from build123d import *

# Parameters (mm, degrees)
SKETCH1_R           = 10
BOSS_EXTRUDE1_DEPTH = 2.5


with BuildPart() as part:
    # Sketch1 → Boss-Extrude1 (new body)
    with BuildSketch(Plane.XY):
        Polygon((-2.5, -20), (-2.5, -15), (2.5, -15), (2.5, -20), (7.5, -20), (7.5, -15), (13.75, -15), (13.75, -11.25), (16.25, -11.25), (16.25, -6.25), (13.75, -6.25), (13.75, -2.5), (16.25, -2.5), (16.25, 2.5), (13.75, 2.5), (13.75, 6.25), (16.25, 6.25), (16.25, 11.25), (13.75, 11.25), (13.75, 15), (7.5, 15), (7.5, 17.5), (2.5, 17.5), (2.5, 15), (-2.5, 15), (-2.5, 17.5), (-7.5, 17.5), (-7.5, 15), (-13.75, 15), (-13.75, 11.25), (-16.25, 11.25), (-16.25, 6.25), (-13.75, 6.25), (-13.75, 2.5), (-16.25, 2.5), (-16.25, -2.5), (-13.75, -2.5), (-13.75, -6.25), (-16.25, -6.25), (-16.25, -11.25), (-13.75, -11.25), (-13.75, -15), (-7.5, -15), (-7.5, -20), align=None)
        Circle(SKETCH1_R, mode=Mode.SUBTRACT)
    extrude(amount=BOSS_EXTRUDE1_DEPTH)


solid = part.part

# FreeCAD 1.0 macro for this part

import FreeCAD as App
import Part
import Sketcher

V = App.Vector

doc = App.newDocument("Part")
body = doc.addObject("PartDesign::Body", "Body")

sketch1 = doc.addObject("Sketcher::SketchObject", "Sketch")
body.addObject(sketch1)
sketch1.AttachmentSupport = (doc.XY_Plane, [""])
sketch1.MapMode = "FlatFace"
sketch1.addGeometry(Part.LineSegment(V(-2.5, -20, 0), V(-2.5, -15, 0)), False)
sketch1.addGeometry(Part.LineSegment(V(-2.5, -15, 0), V(2.5, -15, 0)), False)
sketch1.addGeometry(Part.LineSegment(V(2.5, -15, 0), V(2.5, -20, 0)), False)
sketch1.addGeometry(Part.LineSegment(V(2.5, -20, 0), V(7.5, -20, 0)), False)
sketch1.addGeometry(Part.LineSegment(V(7.5, -20, 0), V(7.5, -15, 0)), False)
sketch1.addGeometry(Part.LineSegment(V(7.5, -15, 0), V(13.75, -15, 0)), False)
sketch1.addGeometry(Part.LineSegment(V(13.75, -15, 0), V(13.75, -11.25, 0)), False)
sketch1.addGeometry(Part.LineSegment(V(13.75, -11.25, 0), V(16.25, -11.25, 0)), False)
sketch1.addGeometry(Part.LineSegment(V(16.25, -11.25, 0), V(16.25, -6.25, 0)), False)
sketch1.addGeometry(Part.LineSegment(V(16.25, -6.25, 0), V(13.75, -6.25, 0)), False)
sketch1.addGeometry(Part.LineSegment(V(13.75, -6.25, 0), V(13.75, -2.5, 0)), False)
sketch1.addGeometry(Part.LineSegment(V(13.75, -2.5, 0), V(16.25, -2.5, 0)), False)
sketch1.addGeometry(Part.LineSegment(V(16.25, -2.5, 0), V(16.25, 2.5, 0)), False)
sketch1.addGeometry(Part.LineSegment(V(16.25, 2.5, 0), V(13.75, 2.5, 0)), False)
sketch1.addGeometry(Part.LineSegment(V(13.75, 2.5, 0), V(13.75, 6.25, 0)), False)
sketch1.addGeometry(Part.LineSegment(V(13.75, 6.25, 0), V(16.25, 6.25, 0)), False)
sketch1.addGeometry(Part.LineSegment(V(16.25, 6.25, 0), V(16.25, 11.25, 0)), False)
sketch1.addGeometry(Part.LineSegment(V(16.25, 11.25, 0), V(13.75, 11.25, 0)), False)
sketch1.addGeometry(Part.LineSegment(V(13.75, 11.25, 0), V(13.75, 15, 0)), False)
sketch1.addGeometry(Part.LineSegment(V(13.75, 15, 0), V(7.5, 15, 0)), False)
sketch1.addGeometry(Part.LineSegment(V(7.5, 15, 0), V(7.5, 17.5, 0)), False)
sketch1.addGeometry(Part.LineSegment(V(7.5, 17.5, 0), V(2.5, 17.5, 0)), False)
sketch1.addGeometry(Part.LineSegment(V(2.5, 17.5, 0), V(2.5, 15, 0)), False)
sketch1.addGeometry(Part.LineSegment(V(2.5, 15, 0), V(-2.5, 15, 0)), False)
sketch1.addGeometry(Part.LineSegment(V(-2.5, 15, 0), V(-2.5, 17.5, 0)), False)
sketch1.addGeometry(Part.LineSegment(V(-2.5, 17.5, 0), V(-7.5, 17.5, 0)), False)
sketch1.addGeometry(Part.LineSegment(V(-7.5, 17.5, 0), V(-7.5, 15, 0)), False)
sketch1.addGeometry(Part.LineSegment(V(-7.5, 15, 0), V(-13.75, 15, 0)), False)
sketch1.addGeometry(Part.LineSegment(V(-13.75, 15, 0), V(-13.75, 11.25, 0)), False)
sketch1.addGeometry(Part.LineSegment(V(-13.75, 11.25, 0), V(-16.25, 11.25, 0)), False)
sketch1.addGeometry(Part.LineSegment(V(-16.25, 11.25, 0), V(-16.25, 6.25, 0)), False)
sketch1.addGeometry(Part.LineSegment(V(-16.25, 6.25, 0), V(-13.75, 6.25, 0)), False)
sketch1.addGeometry(Part.LineSegment(V(-13.75, 6.25, 0), V(-13.75, 2.5, 0)), False)
sketch1.addGeometry(Part.LineSegment(V(-13.75, 2.5, 0), V(-16.25, 2.5, 0)), False)
sketch1.addGeometry(Part.LineSegment(V(-16.25, 2.5, 0), V(-16.25, -2.5, 0)), False)
sketch1.addGeometry(Part.LineSegment(V(-16.25, -2.5, 0), V(-13.75, -2.5, 0)), False)
sketch1.addGeometry(Part.LineSegment(V(-13.75, -2.5, 0), V(-13.75, -6.25, 0)), False)
sketch1.addGeometry(Part.LineSegment(V(-13.75, -6.25, 0), V(-16.25, -6.25, 0)), False)
sketch1.addGeometry(Part.LineSegment(V(-16.25, -6.25, 0), V(-16.25, -11.25, 0)), False)
sketch1.addGeometry(Part.LineSegment(V(-16.25, -11.25, 0), V(-13.75, -11.25, 0)), False)
sketch1.addGeometry(Part.LineSegment(V(-13.75, -11.25, 0), V(-13.75, -15, 0)), False)
sketch1.addGeometry(Part.LineSegment(V(-13.75, -15, 0), V(-7.5, -15, 0)), False)
sketch1.addGeometry(Part.LineSegment(V(-7.5, -15, 0), V(-7.5, -20, 0)), False)
sketch1.addGeometry(Part.LineSegment(V(-7.5, -20, 0), V(-2.5, -20, 0)), False)
sketch1.addGeometry(Part.Circle(V(0, 0, 0), V(0, 0, 1), 10), False)
sketch1.addConstraint(Sketcher.Constraint("Coincident", 0, 2, 1, 1))
sketch1.addConstraint(Sketcher.Constraint("Coincident", 1, 2, 2, 1))
sketch1.addConstraint(Sketcher.Constraint("Coincident", 2, 2, 3, 1))
sketch1.addConstraint(Sketcher.Constraint("Coincident", 3, 2, 4, 1))
sketch1.addConstraint(Sketcher.Constraint("Coincident", 4, 2, 5, 1))
sketch1.addConstraint(Sketcher.Constraint("Coincident", 5, 2, 6, 1))
sketch1.addConstraint(Sketcher.Constraint("Coincident", 6, 2, 7, 1))
sketch1.addConstraint(Sketcher.Constraint("Coincident", 7, 2, 8, 1))
sketch1.addConstraint(Sketcher.Constraint("Coincident", 8, 2, 9, 1))
sketch1.addConstraint(Sketcher.Constraint("Coincident", 9, 2, 10, 1))
sketch1.addConstraint(Sketcher.Constraint("Coincident", 10, 2, 11, 1))
sketch1.addConstraint(Sketcher.Constraint("Coincident", 11, 2, 12, 1))
sketch1.addConstraint(Sketcher.Constraint("Coincident", 12, 2, 13, 1))
sketch1.addConstraint(Sketcher.Constraint("Coincident", 13, 2, 14, 1))
sketch1.addConstraint(Sketcher.Constraint("Coincident", 14, 2, 15, 1))
sketch1.addConstraint(Sketcher.Constraint("Coincident", 15, 2, 16, 1))
sketch1.addConstraint(Sketcher.Constraint("Coincident", 16, 2, 17, 1))
sketch1.addConstraint(Sketcher.Constraint("Coincident", 17, 2, 18, 1))
sketch1.addConstraint(Sketcher.Constraint("Coincident", 18, 2, 19, 1))
sketch1.addConstraint(Sketcher.Constraint("Coincident", 19, 2, 20, 1))
sketch1.addConstraint(Sketcher.Constraint("Coincident", 20, 2, 21, 1))
sketch1.addConstraint(Sketcher.Constraint("Coincident", 21, 2, 22, 1))
sketch1.addConstraint(Sketcher.Constraint("Coincident", 22, 2, 23, 1))
sketch1.addConstraint(Sketcher.Constraint("Coincident", 23, 2, 24, 1))
sketch1.addConstraint(Sketcher.Constraint("Coincident", 24, 2, 25, 1))
sketch1.addConstraint(Sketcher.Constraint("Coincident", 25, 2, 26, 1))
sketch1.addConstraint(Sketcher.Constraint("Coincident", 26, 2, 27, 1))
sketch1.addConstraint(Sketcher.Constraint("Coincident", 27, 2, 28, 1))
sketch1.addConstraint(Sketcher.Constraint("Coincident", 28, 2, 29, 1))
sketch1.addConstraint(Sketcher.Constraint("Coincident", 29, 2, 30, 1))
sketch1.addConstraint(Sketcher.Constraint("Coincident", 30, 2, 31, 1))
sketch1.addConstraint(Sketcher.Constraint("Coincident", 31, 2, 32, 1))
sketch1.addConstraint(Sketcher.Constraint("Coincident", 32, 2, 33, 1))
sketch1.addConstraint(Sketcher.Constraint("Coincident", 33, 2, 34, 1))
sketch1.addConstraint(Sketcher.Constraint("Coincident", 34, 2, 35, 1))
sketch1.addConstraint(Sketcher.Constraint("Coincident", 35, 2, 36, 1))
sketch1.addConstraint(Sketcher.Constraint("Coincident", 36, 2, 37, 1))
sketch1.addConstraint(Sketcher.Constraint("Coincident", 37, 2, 38, 1))
sketch1.addConstraint(Sketcher.Constraint("Coincident", 38, 2, 39, 1))
sketch1.addConstraint(Sketcher.Constraint("Coincident", 39, 2, 40, 1))
sketch1.addConstraint(Sketcher.Constraint("Coincident", 40, 2, 41, 1))
sketch1.addConstraint(Sketcher.Constraint("Coincident", 41, 2, 42, 1))
sketch1.addConstraint(Sketcher.Constraint("Coincident", 42, 2, 43, 1))
sketch1.addConstraint(Sketcher.Constraint("Coincident", 43, 2, 0, 1))
sketch1.addConstraint(Sketcher.Constraint("Vertical", 0))
sketch1.addConstraint(Sketcher.Constraint("Horizontal", 1))
sketch1.addConstraint(Sketcher.Constraint("Vertical", 2))
sketch1.addConstraint(Sketcher.Constraint("Horizontal", 3))
sketch1.addConstraint(Sketcher.Constraint("Vertical", 4))
sketch1.addConstraint(Sketcher.Constraint("Horizontal", 5))
sketch1.addConstraint(Sketcher.Constraint("Vertical", 6))
sketch1.addConstraint(Sketcher.Constraint("Horizontal", 7))
sketch1.addConstraint(Sketcher.Constraint("Vertical", 8))
sketch1.addConstraint(Sketcher.Constraint("Horizontal", 9))
sketch1.addConstraint(Sketcher.Constraint("Vertical", 10))
sketch1.addConstraint(Sketcher.Constraint("Horizontal", 11))
sketch1.addConstraint(Sketcher.Constraint("Vertical", 12))
sketch1.addConstraint(Sketcher.Constraint("Horizontal", 13))
sketch1.addConstraint(Sketcher.Constraint("Vertical", 14))
sketch1.addConstraint(Sketcher.Constraint("Horizontal", 15))
sketch1.addConstraint(Sketcher.Constraint("Vertical", 16))
sketch1.addConstraint(Sketcher.Constraint("Horizontal", 17))
sketch1.addConstraint(Sketcher.Constraint("Vertical", 18))
sketch1.addConstraint(Sketcher.Constraint("Horizontal", 19))
sketch1.addConstraint(Sketcher.Constraint("Vertical", 20))
sketch1.addConstraint(Sketcher.Constraint("Horizontal", 21))
sketch1.addConstraint(Sketcher.Constraint("Vertical", 22))
sketch1.addConstraint(Sketcher.Constraint("Horizontal", 23))
sketch1.addConstraint(Sketcher.Constraint("Vertical", 24))
sketch1.addConstraint(Sketcher.Constraint("Horizontal", 25))
sketch1.addConstraint(Sketcher.Constraint("Vertical", 26))
sketch1.addConstraint(Sketcher.Constraint("Horizontal", 27))
sketch1.addConstraint(Sketcher.Constraint("Vertical", 28))
sketch1.addConstraint(Sketcher.Constraint("Horizontal", 29))
sketch1.addConstraint(Sketcher.Constraint("Vertical", 30))
sketch1.addConstraint(Sketcher.Constraint("Horizontal", 31))
sketch1.addConstraint(Sketcher.Constraint("Vertical", 32))
sketch1.addConstraint(Sketcher.Constraint("Horizontal", 33))
sketch1.addConstraint(Sketcher.Constraint("Vertical", 34))
sketch1.addConstraint(Sketcher.Constraint("Horizontal", 35))
sketch1.addConstraint(Sketcher.Constraint("Vertical", 36))
sketch1.addConstraint(Sketcher.Constraint("Horizontal", 37))
sketch1.addConstraint(Sketcher.Constraint("Vertical", 38))
sketch1.addConstraint(Sketcher.Constraint("Horizontal", 39))
sketch1.addConstraint(Sketcher.Constraint("Vertical", 40))
sketch1.addConstraint(Sketcher.Constraint("Horizontal", 41))
sketch1.addConstraint(Sketcher.Constraint("Vertical", 42))
sketch1.addConstraint(Sketcher.Constraint("Horizontal", 43))
sketch1.addConstraint(Sketcher.Constraint("Coincident", 44, 3, -1, 1))
sketch1.addConstraint(Sketcher.Constraint("Symmetric", 0, 2, 22, 2, -1, 1))
sketch1.addConstraint(Sketcher.Constraint("Symmetric", 4, 2, 26, 2, -1, 1))
sketch1.addConstraint(Sketcher.Constraint("Symmetric", 6, 2, 28, 2, -1, 1))
sketch1.addConstraint(Sketcher.Constraint("Symmetric", 8, 2, 30, 2, -1, 1))
sketch1.addConstraint(Sketcher.Constraint("Symmetric", 10, 2, 32, 2, -1, 1))
sketch1.addConstraint(Sketcher.Constraint("Symmetric", 12, 2, 34, 2, -1, 1))
sketch1.addConstraint(Sketcher.Constraint("Symmetric", 14, 2, 36, 2, -1, 1))
sketch1.addConstraint(Sketcher.Constraint("Symmetric", 16, 2, 38, 2, -1, 1))
sketch1.addConstraint(Sketcher.Constraint("Symmetric", 18, 2, 40, 2, -1, 1))
sketch1.addConstraint(Sketcher.Constraint("Symmetric", 21, 2, 24, 2, -2))
sketch1.addConstraint(Sketcher.Constraint("Symmetric", 19, 2, 26, 2, -2))
sketch1.addConstraint(Sketcher.Constraint("Symmetric", 17, 2, 28, 2, -2))
sketch1.addConstraint(Sketcher.Constraint("Symmetric", 15, 2, 30, 2, -2))
sketch1.addConstraint(Sketcher.Constraint("Symmetric", 13, 2, 32, 2, -2))
sketch1.addConstraint(Sketcher.Constraint("Symmetric", 3, 2, 42, 2, -2))
sketch1.addConstraint(Sketcher.Constraint("Horizontal", 1, 2, 4, 2))
sketch1.addConstraint(Sketcher.Constraint("Vertical", 6, 2, 9, 2))
sketch1.addConstraint(Sketcher.Constraint("Vertical", 8, 2, 11, 2))
sketch1.addConstraint(Sketcher.Constraint("Vertical", 2, 2, 21, 2))
sketch1.addConstraint(Sketcher.Constraint("Equal", 1, 3))
sketch1.addConstraint(Sketcher.Constraint("Equal", 43, 0))
sketch1.addConstraint(Sketcher.Constraint("Equal", 4, 8))
sketch1.addConstraint(Sketcher.Constraint("Equal", 6, 10))
sketch1.addConstraint(Sketcher.Constraint("Equal", 8, 12))
sketch1.addConstraint(Sketcher.Constraint("Equal", 39, 20))
sketch1.addConstraint(Sketcher.Constraint("Diameter", 44, 20.0))
sketch1.addConstraint(Sketcher.Constraint("DistanceX", 1, 1, 1, 2, 5.0))
sketch1.addConstraint(Sketcher.Constraint("DistanceX", 7, 1, 7, 2, 2.5))
sketch1.addConstraint(Sketcher.Constraint("DistanceY", 0, 2, -1, 1, 15.0))
sketch1.addConstraint(Sketcher.Constraint("DistanceX", 5, 1, 5, 2, 6.25))
pad1 = doc.addObject("PartDesign::Pad", "Pad")
body.addObject(pad1)
pad1.Profile = sketch1
pad1.Length = 2.5

doc.recompute()
